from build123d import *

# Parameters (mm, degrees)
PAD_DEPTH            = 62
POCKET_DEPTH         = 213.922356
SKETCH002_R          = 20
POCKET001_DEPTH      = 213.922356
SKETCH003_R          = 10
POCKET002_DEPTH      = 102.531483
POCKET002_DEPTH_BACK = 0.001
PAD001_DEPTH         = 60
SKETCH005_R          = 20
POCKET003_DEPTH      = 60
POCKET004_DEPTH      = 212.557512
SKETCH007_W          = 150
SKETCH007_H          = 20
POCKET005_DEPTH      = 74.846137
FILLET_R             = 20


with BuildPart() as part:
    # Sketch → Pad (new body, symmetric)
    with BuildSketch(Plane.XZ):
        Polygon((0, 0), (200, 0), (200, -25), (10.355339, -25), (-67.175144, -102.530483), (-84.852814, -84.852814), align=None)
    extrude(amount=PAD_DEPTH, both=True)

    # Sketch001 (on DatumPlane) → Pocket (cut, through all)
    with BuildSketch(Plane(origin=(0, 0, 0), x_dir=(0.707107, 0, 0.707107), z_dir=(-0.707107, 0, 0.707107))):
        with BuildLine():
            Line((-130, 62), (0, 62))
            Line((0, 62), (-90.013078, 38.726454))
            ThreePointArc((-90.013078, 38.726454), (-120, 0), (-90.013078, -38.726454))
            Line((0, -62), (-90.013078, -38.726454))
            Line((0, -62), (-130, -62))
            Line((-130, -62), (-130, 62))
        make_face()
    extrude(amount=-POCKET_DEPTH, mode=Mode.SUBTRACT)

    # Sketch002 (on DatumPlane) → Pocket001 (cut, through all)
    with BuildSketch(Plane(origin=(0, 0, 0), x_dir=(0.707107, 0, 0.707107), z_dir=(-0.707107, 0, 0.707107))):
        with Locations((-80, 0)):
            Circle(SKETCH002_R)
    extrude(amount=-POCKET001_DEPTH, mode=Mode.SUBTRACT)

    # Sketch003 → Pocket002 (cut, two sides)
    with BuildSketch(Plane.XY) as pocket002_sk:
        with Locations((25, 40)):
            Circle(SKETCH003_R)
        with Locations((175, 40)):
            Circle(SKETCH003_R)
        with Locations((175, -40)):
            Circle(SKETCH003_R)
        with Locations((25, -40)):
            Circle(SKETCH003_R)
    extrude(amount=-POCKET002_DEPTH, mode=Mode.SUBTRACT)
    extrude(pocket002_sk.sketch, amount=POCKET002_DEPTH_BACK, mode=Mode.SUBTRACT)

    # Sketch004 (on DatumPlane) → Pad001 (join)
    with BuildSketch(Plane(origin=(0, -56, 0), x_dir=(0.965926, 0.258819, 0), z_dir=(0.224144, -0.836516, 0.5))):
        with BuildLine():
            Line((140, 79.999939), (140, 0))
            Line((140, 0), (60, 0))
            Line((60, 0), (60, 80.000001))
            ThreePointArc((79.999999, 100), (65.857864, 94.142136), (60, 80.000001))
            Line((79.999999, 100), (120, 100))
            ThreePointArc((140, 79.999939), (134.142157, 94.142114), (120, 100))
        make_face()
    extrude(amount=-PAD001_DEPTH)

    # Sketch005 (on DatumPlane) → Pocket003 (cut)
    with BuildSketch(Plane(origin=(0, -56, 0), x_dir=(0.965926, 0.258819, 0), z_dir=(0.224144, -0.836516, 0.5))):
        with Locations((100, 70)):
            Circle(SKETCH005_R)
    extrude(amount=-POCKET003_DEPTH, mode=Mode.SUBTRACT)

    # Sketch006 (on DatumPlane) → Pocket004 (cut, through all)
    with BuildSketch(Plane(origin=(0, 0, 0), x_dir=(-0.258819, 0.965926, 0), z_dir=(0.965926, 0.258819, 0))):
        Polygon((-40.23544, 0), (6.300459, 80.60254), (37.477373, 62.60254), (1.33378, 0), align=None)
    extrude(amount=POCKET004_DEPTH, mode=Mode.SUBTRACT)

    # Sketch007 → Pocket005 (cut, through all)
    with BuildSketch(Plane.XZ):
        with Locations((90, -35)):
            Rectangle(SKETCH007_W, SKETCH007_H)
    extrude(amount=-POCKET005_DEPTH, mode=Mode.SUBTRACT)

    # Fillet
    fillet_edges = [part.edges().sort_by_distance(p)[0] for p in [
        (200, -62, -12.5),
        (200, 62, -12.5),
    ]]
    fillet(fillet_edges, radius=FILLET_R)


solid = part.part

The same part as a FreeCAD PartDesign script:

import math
import FreeCAD as App
import Part
import Sketcher
Q = App.Units.Quantity


def edges_at(feature, points):
    """Names of the edges that pass closest to the given points."""
    edges = feature.Shape.Edges
    near = lambda p: min(range(len(edges)), key=lambda i: edges[i].distToShape(Part.Vertex(*p))[0])
    return sorted({f"Edge{near(p) + 1}" for p in points})

doc = App.newDocument("Part")
body = doc.addObject("PartDesign::Body", "Body")

# Sketch on XZ plane
sketch1 = doc.addObject("Sketcher::SketchObject", "Sketch")
body.addObject(sketch1)
sketch1.AttachmentSupport = (doc.XZ_Plane, [""])
sketch1.MapMode = "FlatFace"
sketch1.addGeometry([
    Part.LineSegment(App.Vector(200, 0, 0), App.Vector(0, 0, 0)),  # 0
    Part.LineSegment(App.Vector(0, 0, 0), App.Vector(-84.852814, -84.852814, 0)),  # 1
    Part.LineSegment(App.Vector(-84.852814, -84.852814, 0), App.Vector(-67.175144, -102.530483, 0)),  # 2
    Part.LineSegment(App.Vector(-67.175144, -102.530483, 0), App.Vector(10.355339, -25, 0)),  # 3
    Part.LineSegment(App.Vector(10.355339, -25, 0), App.Vector(200, -25, 0)),  # 4
    Part.LineSegment(App.Vector(200, -25, 0), App.Vector(200, 0, 0)),  # 5
], False)
sketch1.addConstraint([
    Sketcher.Constraint("Coincident", 0, 2, 1, 1),
    Sketcher.Constraint("Coincident", 1, 2, 2, 1),
    Sketcher.Constraint("Coincident", 2, 2, 3, 1),
    Sketcher.Constraint("Coincident", 3, 2, 4, 1),
    Sketcher.Constraint("Coincident", 4, 2, 5, 1),
    Sketcher.Constraint("Coincident", 5, 2, 0, 1),
    Sketcher.Constraint("Horizontal", 0),
    Sketcher.Constraint("Horizontal", 4),
    Sketcher.Constraint("Vertical", 5),
    Sketcher.Constraint("Coincident", 0, 2, -1, 1),
    Sketcher.Constraint("Perpendicular", 1, 2),
    Sketcher.Constraint("Perpendicular", 2, 3),
    Sketcher.Constraint("DistanceX", 0, 2, 0, 1, Q("200 mm")),
    Sketcher.Constraint("DistanceY", 5, 1, 5, 2, Q("25 mm")),
    Sketcher.Constraint("Angle", 1, Q("-135 deg")),
    Sketcher.Constraint("Distance", 1, Q("120 mm")),
    Sketcher.Constraint("Distance", 2, Q("25 mm")),
])
pad1 = doc.addObject("PartDesign::Pad", "Pad")
body.addObject(pad1)
pad1.Profile = sketch1
pad1.Length = 124
pad1.Midplane = True

# Sketch on an angled plane
sketch2 = doc.addObject("Sketcher::SketchObject", "Sketch001")
body.addObject(sketch2)
sketch2.Placement = App.Placement(App.Vector(0, 0, 0), App.Rotation(App.Vector(0.707106781, 0, 0.707106781), App.Vector(0, 0.999999999, 0), App.Vector(-0.707106781, 0, 0.707106781), "ZXY"))
sketch2.addGeometry([
    Part.LineSegment(App.Vector(0, 62, 0), App.Vector(-130, 62, 0)),  # 0
    Part.LineSegment(App.Vector(-130, 62, 0), App.Vector(-130, -62, 0)),  # 1
    Part.LineSegment(App.Vector(-130, -62, 0), App.Vector(0, -62, 0)),  # 2
    Part.LineSegment(App.Vector(0, -62, 0), App.Vector(-90.013078, -38.726454, 0)),  # 3
    Part.ArcOfCircle(Part.Circle(App.Vector(-80, 0, 0), App.Vector(0, 0, 1), 40), math.radians(104.49686), math.radians(255.50314)),  # 4
    Part.LineSegment(App.Vector(-90.013078, 38.726454, 0), App.Vector(0, 62, 0)),  # 5
], False)
sketch2.addConstraint([
    Sketcher.Constraint("Coincident", 0, 2, 1, 1),
    Sketcher.Constraint("Coincident", 1, 2, 2, 1),
    Sketcher.Constraint("Coincident", 2, 2, 3, 1),
    Sketcher.Constraint("Coincident", 3, 2, 4, 2),
    Sketcher.Constraint("Coincident", 4, 1, 5, 1),
    Sketcher.Constraint("Coincident", 5, 2, 0, 1),
    Sketcher.Constraint("Horizontal", 0),
    Sketcher.Constraint("Vertical", 1),
    Sketcher.Constraint("Horizontal", 2),
    Sketcher.Constraint("PointOnObject", 4, 3, -1),
    Sketcher.Constraint("PointOnObject", 2, 2, -2),
    Sketcher.Constraint("PointOnObject", 5, 2, -2),
    Sketcher.Constraint("Radius", 4, Q("40 mm")),
    Sketcher.Constraint("DistanceX", 0, 2, 0, 1, Q("130 mm")),
    Sketcher.Constraint("DistanceY", 1, 2, 1, 1, Q("124 mm")),
    Sketcher.Constraint("DistanceX", 4, 3, -1, 1, Q("80 mm")),
    Sketcher.Constraint("DistanceY", -1, 1, 0, 2, Q("62 mm")),
    Sketcher.Constraint("Distance", 3, Q("92.97318 mm")),
    Sketcher.Constraint("Distance", 5, Q("92.97318 mm")),
])
pocket1 = doc.addObject("PartDesign::Pocket", "Pocket")
body.addObject(pocket1)
pocket1.Profile = sketch2
pocket1.Type = "ThroughAll"

# Sketch on an angled plane
sketch3 = doc.addObject("Sketcher::SketchObject", "Sketch002")
body.addObject(sketch3)
sketch3.Placement = App.Placement(App.Vector(0, 0, 0), App.Rotation(App.Vector(0.707106781, 0, 0.707106781), App.Vector(0, 0.999999999, 0), App.Vector(-0.707106781, 0, 0.707106781), "ZXY"))
sketch3.addGeometry(Part.Circle(App.Vector(-80, 0, 0), App.Vector(0, 0, 1), 20), False)
sketch3.addConstraint([
    Sketcher.Constraint("PointOnObject", 0, 3, -1),
    Sketcher.Constraint("Diameter", 0, Q("40 mm")),
    Sketcher.Constraint("DistanceX", 0, 3, -1, 1, Q("80 mm")),
])
pocket2 = doc.addObject("PartDesign::Pocket", "Pocket001")
body.addObject(pocket2)
pocket2.Profile = sketch3
pocket2.Type = "ThroughAll"

# Sketch on XY plane
sketch4 = doc.addObject("Sketcher::SketchObject", "Sketch003")
body.addObject(sketch4)
sketch4.AttachmentSupport = (doc.XY_Plane, [""])
sketch4.MapMode = "FlatFace"
sketch4.addGeometry([
    Part.Circle(App.Vector(25, 40, 0), App.Vector(0, 0, 1), 10),
    Part.Circle(App.Vector(175, 40, 0), App.Vector(0, 0, 1), 10),
    Part.Circle(App.Vector(175, -40, 0), App.Vector(0, 0, 1), 10),
    Part.Circle(App.Vector(25, -40, 0), App.Vector(0, 0, 1), 10),
], False)
sketch4.addConstraint([
    Sketcher.Constraint("Equal", 0, 1),
    Sketcher.Constraint("Equal", 1, 2),
    Sketcher.Constraint("Equal", 2, 3),
    Sketcher.Constraint("Symmetric", 1, 3, 2, 3, -1),
    Sketcher.Constraint("Symmetric", 0, 3, 3, 3, -1),
    Sketcher.Constraint("Horizontal", 0, 3, 1, 3),
    Sketcher.Constraint("Diameter", 0, Q("20 mm")),
    Sketcher.Constraint("DistanceX", -1, 1, 0, 3, Q("25 mm")),
    Sketcher.Constraint("DistanceY", -1, 1, 0, 3, Q("40 mm")),
    Sketcher.Constraint("DistanceX", -1, 1, 1, 3, Q("175 mm")),
])
pocket3 = doc.addObject("PartDesign::Pocket", "Pocket002")
body.addObject(pocket3)
pocket3.Profile = sketch4
pocket3.Type = "ThroughAll"
pocket3.Midplane = True

# Sketch on an angled plane
sketch5 = doc.addObject("Sketcher::SketchObject", "Sketch004")
body.addObject(sketch5)
sketch5.Placement = App.Placement(App.Vector(0, -56, 0), App.Rotation(App.Vector(0.965925786, 0.258819196, -0.000000141), App.Vector(-0.129409509, 0.482963033, 0.866025339), App.Vector(0.22414405, -0.836516188, 0.500000112), "ZXY"))
sketch5.addGeometry([
    Part.LineSegment(App.Vector(140, 0, 0), App.Vector(140, 79.999939, 0)),  # 0
    Part.ArcOfCircle(Part.Circle(App.Vector(120, 80, 0), App.Vector(0, 0, 1), 20), math.radians(-0.000174), math.radians(89.999999)),  # 1
    Part.LineSegment(App.Vector(120, 100, 0), App.Vector(79.999999, 100, 0)),  # 2
    Part.ArcOfCircle(Part.Circle(App.Vector(79.999999, 80.000001, 0), App.Vector(0, 0, 1), 19.999999), math.radians(89.999999), math.radians(180.000001)),  # 3
    Part.LineSegment(App.Vector(60, 80.000001, 0), App.Vector(60, 0, 0)),  # 4
    Part.LineSegment(App.Vector(60, 0, 0), App.Vector(140, 0, 0)),  # 5
], False)
sketch5.addConstraint([
    Sketcher.Constraint("Coincident", 0, 2, 1, 1),
    Sketcher.Constraint("Tangent", 1, 2, 2, 1),
    Sketcher.Constraint("Tangent", 2, 2, 3, 1),
    Sketcher.Constraint("Tangent", 3, 2, 4, 1),
    Sketcher.Constraint("Coincident", 4, 2, 5, 1),
    Sketcher.Constraint("Coincident", 5, 2, 0, 1),
    Sketcher.Constraint("Vertical", 0),
    Sketcher.Constraint("Horizontal", 2),
    Sketcher.Constraint("Vertical", 4),
    Sketcher.Constraint("Horizontal", 5),
    Sketcher.Constraint("Equal", 1, 3),
    Sketcher.Constraint("PointOnObject", 4, 2, -1),
    Sketcher.Constraint("Equal", 5, 4),
    Sketcher.Constraint("Radius", 1, Q("20 mm")),
    Sketcher.Constraint("DistanceX", 2, 2, 2, 1, Q("40.000001 mm")),
    Sketcher.Constraint("DistanceX", -1, 1, 1, 3, Q("120 mm")),
    Sketcher.Constraint("DistanceY", 0, 1, 0, 2, Q("79.999939 mm")),
])
pad2 = doc.addObject("PartDesign::Pad", "Pad001")
body.addObject(pad2)
pad2.Profile = sketch5
pad2.Length = 60
pad2.Reversed = True

# Sketch on an angled plane
sketch6 = doc.addObject("Sketcher::SketchObject", "Sketch005")
body.addObject(sketch6)
sketch6.Placement = App.Placement(App.Vector(0, -56, 0), App.Rotation(App.Vector(0.965925786, 0.258819196, -0.000000141), App.Vector(-0.129409509, 0.482963033, 0.866025339), App.Vector(0.22414405, -0.836516188, 0.500000112), "ZXY"))
sketch6.addGeometry(Part.Circle(App.Vector(100, 70, 0), App.Vector(0, 0, 1), 20), False)
sketch6.addConstraint([
    Sketcher.Constraint("Diameter", 0, Q("40 mm")),
    Sketcher.Constraint("DistanceX", -1, 1, 0, 3, Q("100 mm")),
    Sketcher.Constraint("DistanceY", -1, 1, 0, 3, Q("70 mm")),
])
pocket4 = doc.addObject("PartDesign::Pocket", "Pocket003")
body.addObject(pocket4)
pocket4.Profile = sketch6
pocket4.Length = 60

# Sketch on an angled plane
sketch7 = doc.addObject("Sketcher::SketchObject", "Sketch006")
body.addObject(sketch7)
sketch7.Placement = App.Placement(App.Vector(0, 0, 0), App.Rotation(App.Vector(-0.25881896, 0.965925849, 0), App.Vector(0, 0, 1), App.Vector(0.965925849, 0.25881896, 0), "ZXY"))
sketch7.addGeometry([
    Part.LineSegment(App.Vector(6.300459, 80.60254, 0), App.Vector(-40.23544, 0, 0)),
    Part.LineSegment(App.Vector(-40.23544, 0, 0), App.Vector(1.33378, 0, 0)),
    Part.LineSegment(App.Vector(1.33378, 0, 0), App.Vector(37.477373, 62.60254, 0)),
    Part.LineSegment(App.Vector(37.477373, 62.60254, 0), App.Vector(6.300459, 80.60254, 0)),
], False)
sketch7.addConstraint([
    Sketcher.Constraint("Coincident", 0, 2, 1, 1),
    Sketcher.Constraint("Coincident", 1, 2, 2, 1),
    Sketcher.Constraint("Coincident", 2, 2, 3, 1),
    Sketcher.Constraint("Coincident", 3, 2, 0, 1),
    Sketcher.Constraint("Horizontal", 1),
    Sketcher.Constraint("PointOnObject", 0, 2, -1),
    Sketcher.Constraint("Parallel", 0, 2),
    Sketcher.Constraint("Perpendicular", 2, 3),
    Sketcher.Constraint("Angle", 0, Q("-120 deg")),
    Sketcher.Constraint("Distance", 3, Q("36 mm")),
    Sketcher.Constraint("DistanceX", 0, 2, 3, 2, Q("46.535899 mm")),
    Sketcher.Constraint("DistanceX", 0, 2, -1, 1, Q("40.23544 mm")),
])
pocket5 = doc.addObject("PartDesign::Pocket", "Pocket004")
body.addObject(pocket5)
pocket5.Profile = sketch7
pocket5.Type = "ThroughAll"
pocket5.Reversed = True

# Sketch on XZ plane
sketch8 = doc.addObject("Sketcher::SketchObject", "Sketch007")
body.addObject(sketch8)
sketch8.AttachmentSupport = (doc.XZ_Plane, [""])
sketch8.MapMode = "FlatFace"
sketch8.addGeometry([
    Part.LineSegment(App.Vector(15, -25, 0), App.Vector(15, -45, 0)),
    Part.LineSegment(App.Vector(15, -45, 0), App.Vector(165, -45, 0)),
    Part.LineSegment(App.Vector(165, -45, 0), App.Vector(165, -25, 0)),
    Part.LineSegment(App.Vector(165, -25, 0), App.Vector(15, -25, 0)),
], False)
sketch8.addConstraint([
    Sketcher.Constraint("Coincident", 0, 2, 1, 1),
    Sketcher.Constraint("Coincident", 1, 2, 2, 1),
    Sketcher.Constraint("Coincident", 2, 2, 3, 1),
    Sketcher.Constraint("Coincident", 3, 2, 0, 1),
    Sketcher.Constraint("Vertical", 0),
    Sketcher.Constraint("Horizontal", 1),
    Sketcher.Constraint("Vertical", 2),
    Sketcher.Constraint("Horizontal", 3),
    Sketcher.Constraint("DistanceX", 1, 1, 1, 2, Q("150 mm")),
    Sketcher.Constraint("DistanceY", 0, 2, 0, 1, Q("20 mm")),
    Sketcher.Constraint("DistanceX", -1, 1, 0, 2, Q("15 mm")),
    Sketcher.Constraint("DistanceY", 0, 2, -1, 1, Q("45 mm")),
])
pocket6 = doc.addObject("PartDesign::Pocket", "Pocket005")
body.addObject(pocket6)
pocket6.Profile = sketch8
pocket6.Type = "ThroughAll"
doc.recompute()

fillet = doc.addObject("PartDesign::Fillet", "Fillet")
body.addObject(fillet)
fillet.Base = (pocket6, edges_at(pocket6, [(200, -62, -12.5), (200, 62, -12.5)]))
fillet.Radius = 20

doc.recompute()
